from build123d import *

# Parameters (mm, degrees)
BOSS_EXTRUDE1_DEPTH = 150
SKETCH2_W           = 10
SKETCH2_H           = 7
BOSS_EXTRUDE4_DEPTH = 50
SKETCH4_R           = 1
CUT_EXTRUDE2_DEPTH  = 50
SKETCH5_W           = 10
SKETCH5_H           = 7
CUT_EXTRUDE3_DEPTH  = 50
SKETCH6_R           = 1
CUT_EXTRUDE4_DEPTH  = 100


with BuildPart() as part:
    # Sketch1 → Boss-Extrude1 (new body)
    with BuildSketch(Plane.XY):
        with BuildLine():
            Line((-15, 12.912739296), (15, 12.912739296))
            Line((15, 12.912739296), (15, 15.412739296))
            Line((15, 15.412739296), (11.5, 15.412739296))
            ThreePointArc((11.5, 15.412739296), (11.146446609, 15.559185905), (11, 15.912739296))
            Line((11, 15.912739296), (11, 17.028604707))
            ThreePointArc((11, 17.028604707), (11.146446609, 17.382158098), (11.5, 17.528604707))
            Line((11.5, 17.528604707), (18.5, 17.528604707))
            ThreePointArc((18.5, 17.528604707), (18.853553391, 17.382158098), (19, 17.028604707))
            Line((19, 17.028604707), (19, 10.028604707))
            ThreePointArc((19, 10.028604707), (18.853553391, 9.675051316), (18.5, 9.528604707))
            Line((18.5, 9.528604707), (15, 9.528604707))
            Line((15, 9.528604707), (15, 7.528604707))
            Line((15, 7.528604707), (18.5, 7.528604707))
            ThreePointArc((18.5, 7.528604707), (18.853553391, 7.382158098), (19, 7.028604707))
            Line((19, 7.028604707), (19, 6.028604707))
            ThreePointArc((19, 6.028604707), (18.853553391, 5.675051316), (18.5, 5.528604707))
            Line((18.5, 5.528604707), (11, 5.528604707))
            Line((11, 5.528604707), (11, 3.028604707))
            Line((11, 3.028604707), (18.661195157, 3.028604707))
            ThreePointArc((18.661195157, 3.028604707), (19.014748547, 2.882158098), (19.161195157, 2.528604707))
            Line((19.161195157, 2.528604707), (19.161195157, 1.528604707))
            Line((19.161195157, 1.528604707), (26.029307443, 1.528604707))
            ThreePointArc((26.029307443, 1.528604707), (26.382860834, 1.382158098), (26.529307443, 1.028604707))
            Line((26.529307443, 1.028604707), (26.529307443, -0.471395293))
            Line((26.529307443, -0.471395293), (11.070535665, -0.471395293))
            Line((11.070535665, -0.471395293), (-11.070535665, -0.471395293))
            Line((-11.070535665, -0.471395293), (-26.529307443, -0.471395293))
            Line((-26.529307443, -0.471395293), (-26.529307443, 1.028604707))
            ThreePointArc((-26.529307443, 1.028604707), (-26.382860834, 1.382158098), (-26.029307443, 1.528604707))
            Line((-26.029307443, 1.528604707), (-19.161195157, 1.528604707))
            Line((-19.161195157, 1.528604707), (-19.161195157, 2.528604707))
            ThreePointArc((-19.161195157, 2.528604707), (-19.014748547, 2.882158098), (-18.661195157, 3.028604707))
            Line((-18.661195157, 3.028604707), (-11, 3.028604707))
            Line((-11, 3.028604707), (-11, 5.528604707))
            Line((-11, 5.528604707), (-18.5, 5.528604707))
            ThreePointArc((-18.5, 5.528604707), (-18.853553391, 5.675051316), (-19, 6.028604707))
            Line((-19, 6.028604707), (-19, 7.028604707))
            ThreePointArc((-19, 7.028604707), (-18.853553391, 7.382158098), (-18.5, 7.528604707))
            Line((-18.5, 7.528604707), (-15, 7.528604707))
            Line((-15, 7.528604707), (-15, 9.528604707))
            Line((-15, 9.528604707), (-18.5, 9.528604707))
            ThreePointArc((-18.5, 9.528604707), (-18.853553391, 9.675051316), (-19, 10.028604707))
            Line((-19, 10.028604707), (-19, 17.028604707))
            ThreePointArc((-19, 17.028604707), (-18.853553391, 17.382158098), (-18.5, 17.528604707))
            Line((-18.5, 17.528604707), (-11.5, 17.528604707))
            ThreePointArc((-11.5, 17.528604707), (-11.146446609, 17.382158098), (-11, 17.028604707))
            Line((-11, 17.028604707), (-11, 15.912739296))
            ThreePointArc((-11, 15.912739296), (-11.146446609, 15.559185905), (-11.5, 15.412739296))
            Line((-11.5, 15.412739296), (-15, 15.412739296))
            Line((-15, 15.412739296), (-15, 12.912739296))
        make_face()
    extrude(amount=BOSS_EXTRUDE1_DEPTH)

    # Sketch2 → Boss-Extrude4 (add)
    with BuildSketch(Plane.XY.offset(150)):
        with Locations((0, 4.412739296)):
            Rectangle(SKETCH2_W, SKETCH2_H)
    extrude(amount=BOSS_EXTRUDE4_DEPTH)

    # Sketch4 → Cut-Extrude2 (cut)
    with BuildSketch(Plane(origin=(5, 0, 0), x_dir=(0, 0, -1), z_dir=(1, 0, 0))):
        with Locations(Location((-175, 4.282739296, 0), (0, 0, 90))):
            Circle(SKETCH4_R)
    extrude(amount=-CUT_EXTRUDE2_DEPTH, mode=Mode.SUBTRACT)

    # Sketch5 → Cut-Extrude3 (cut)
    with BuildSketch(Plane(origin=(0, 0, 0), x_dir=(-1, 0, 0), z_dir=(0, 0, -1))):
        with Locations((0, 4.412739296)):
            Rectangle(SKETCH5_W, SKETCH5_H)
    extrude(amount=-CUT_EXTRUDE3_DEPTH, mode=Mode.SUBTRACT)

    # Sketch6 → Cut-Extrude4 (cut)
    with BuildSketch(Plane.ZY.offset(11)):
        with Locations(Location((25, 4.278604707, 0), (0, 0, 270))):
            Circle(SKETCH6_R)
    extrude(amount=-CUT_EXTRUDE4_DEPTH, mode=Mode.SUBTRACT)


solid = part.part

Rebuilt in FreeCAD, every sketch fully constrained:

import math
import FreeCAD as App
import Part
import Sketcher
Q = App.Units.Quantity

doc = App.newDocument("Part")
body = doc.addObject("PartDesign::Body", "Body")

# Sketch on XY plane
sketch1 = body.newObject("Sketcher::SketchObject", "Sketch")
sketch1.AttachmentSupport = (doc.getObject("XY_Plane"), [""])
sketch1.MapMode = "FlatFace"
sketch1.addGeometry([
    Part.LineSegment(App.Vector(15, 12.912739, 0), App.Vector(-15, 12.912739, 0)),  # 0
    Part.LineSegment(App.Vector(-15, 12.912739, 0), App.Vector(-15, 15.412739, 0)),  # 1
    Part.LineSegment(App.Vector(-15, 15.412739, 0), App.Vector(-11.5, 15.412739, 0)),  # 2
    Part.ArcOfCircle(Part.Circle(App.Vector(-11.5, 15.912739, 0), App.Vector(0, 0, 1), 0.5), math.radians(-90), math.radians(0)),  # 3
    Part.LineSegment(App.Vector(-11, 15.912739, 0), App.Vector(-11, 17.028605, 0)),  # 4
    Part.ArcOfCircle(Part.Circle(App.Vector(-11.5, 17.028605, 0), App.Vector(0, 0, 1), 0.5), math.radians(0), math.radians(90)),  # 5
    Part.LineSegment(App.Vector(-11.5, 17.528605, 0), App.Vector(-18.5, 17.528605, 0)),  # 6
    Part.ArcOfCircle(Part.Circle(App.Vector(-18.5, 17.028605, 0), App.Vector(0, 0, 1), 0.5), math.radians(90), math.radians(180)),  # 7
    Part.LineSegment(App.Vector(-19, 17.028605, 0), App.Vector(-19, 10.028605, 0)),  # 8
    Part.ArcOfCircle(Part.Circle(App.Vector(-18.5, 10.028605, 0), App.Vector(0, 0, 1), 0.5), math.radians(180), math.radians(270)),  # 9
    Part.LineSegment(App.Vector(-18.5, 9.528605, 0), App.Vector(-15, 9.528605, 0)),  # 10
    Part.LineSegment(App.Vector(-15, 9.528605, 0), App.Vector(-15, 7.528605, 0)),  # 11
    Part.LineSegment(App.Vector(-15, 7.528605, 0), App.Vector(-18.5, 7.528605, 0)),  # 12
    Part.ArcOfCircle(Part.Circle(App.Vector(-18.5, 7.028605, 0), App.Vector(0, 0, 1), 0.5), math.radians(90), math.radians(180)),  # 13
    Part.LineSegment(App.Vector(-19, 7.028605, 0), App.Vector(-19, 6.028605, 0)),  # 14
    Part.ArcOfCircle(Part.Circle(App.Vector(-18.5, 6.028605, 0), App.Vector(0, 0, 1), 0.5), math.radians(180), math.radians(270)),  # 15
    Part.LineSegment(App.Vector(-18.5, 5.528605, 0), App.Vector(-11, 5.528605, 0)),  # 16
    Part.LineSegment(App.Vector(-11, 5.528605, 0), App.Vector(-11, 3.028605, 0)),  # 17
    Part.LineSegment(App.Vector(-11, 3.028605, 0), App.Vector(-18.661195, 3.028605, 0)),  # 18
    Part.ArcOfCircle(Part.Circle(App.Vector(-18.661195, 2.528605, 0), App.Vector(0, 0, 1), 0.5), math.radians(90), math.radians(180)),  # 19
    Part.LineSegment(App.Vector(-19.161195, 2.528605, 0), App.Vector(-19.161195, 1.528605, 0)),  # 20
    Part.LineSegment(App.Vector(-19.161195, 1.528605, 0), App.Vector(-26.029307, 1.528605, 0)),  # 21
    Part.ArcOfCircle(Part.Circle(App.Vector(-26.029307, 1.028605, 0), App.Vector(0, 0, 1), 0.5), math.radians(90), math.radians(180)),  # 22
    Part.LineSegment(App.Vector(-26.529307, 1.028605, 0), App.Vector(-26.529307, -0.471395, 0)),  # 23
    Part.LineSegment(App.Vector(-26.529307, -0.471395, 0), App.Vector(26.529307, -0.471395, 0)),  # 24
    Part.LineSegment(App.Vector(26.529307, -0.471395, 0), App.Vector(26.529307, 1.028605, 0)),  # 25
    Part.ArcOfCircle(Part.Circle(App.Vector(26.029307, 1.028605, 0), App.Vector(0, 0, 1), 0.5), math.radians(0), math.radians(90)),  # 26
    Part.LineSegment(App.Vector(26.029307, 1.528605, 0), App.Vector(19.161195, 1.528605, 0)),  # 27
    Part.LineSegment(App.Vector(19.161195, 1.528605, 0), App.Vector(19.161195, 2.528605, 0)),  # 28
    Part.ArcOfCircle(Part.Circle(App.Vector(18.661195, 2.528605, 0), App.Vector(0, 0, 1), 0.5), math.radians(0), math.radians(90)),  # 29
    Part.LineSegment(App.Vector(18.661195, 3.028605, 0), App.Vector(11, 3.028605, 0)),  # 30
    Part.LineSegment(App.Vector(11, 3.028605, 0), App.Vector(11, 5.528605, 0)),  # 31
    Part.LineSegment(App.Vector(11, 5.528605, 0), App.Vector(18.5, 5.528605, 0)),  # 32
    Part.ArcOfCircle(Part.Circle(App.Vector(18.5, 6.028605, 0), App.Vector(0, 0, 1), 0.5), math.radians(-90), math.radians(0)),  # 33
    Part.LineSegment(App.Vector(19, 6.028605, 0), App.Vector(19, 7.028605, 0)),  # 34
    Part.ArcOfCircle(Part.Circle(App.Vector(18.5, 7.028605, 0), App.Vector(0, 0, 1), 0.5), math.radians(0), math.radians(90)),  # 35
    Part.LineSegment(App.Vector(18.5, 7.528605, 0), App.Vector(15, 7.528605, 0)),  # 36
    Part.LineSegment(App.Vector(15, 7.528605, 0), App.Vector(15, 9.528605, 0)),  # 37
    Part.LineSegment(App.Vector(15, 9.528605, 0), App.Vector(18.5, 9.528605, 0)),  # 38
    Part.ArcOfCircle(Part.Circle(App.Vector(18.5, 10.028605, 0), App.Vector(0, 0, 1), 0.5), math.radians(-90), math.radians(0)),  # 39
    Part.LineSegment(App.Vector(19, 10.028605, 0), App.Vector(19, 17.028605, 0)),  # 40
    Part.ArcOfCircle(Part.Circle(App.Vector(18.5, 17.028605, 0), App.Vector(0, 0, 1), 0.5), math.radians(0), math.radians(90)),  # 41
    Part.LineSegment(App.Vector(18.5, 17.528605, 0), App.Vector(11.5, 17.528605, 0)),  # 42
    Part.ArcOfCircle(Part.Circle(App.Vector(11.5, 17.028605, 0), App.Vector(0, 0, 1), 0.5), math.radians(90), math.radians(180)),  # 43
    Part.LineSegment(App.Vector(11, 17.028605, 0), App.Vector(11, 15.912739, 0)),  # 44
    Part.ArcOfCircle(Part.Circle(App.Vector(11.5, 15.912739, 0), App.Vector(0, 0, 1), 0.5), math.radians(180), math.radians(270)),  # 45
    Part.LineSegment(App.Vector(11.5, 15.412739, 0), App.Vector(15, 15.412739, 0)),  # 46
    Part.LineSegment(App.Vector(15, 15.412739, 0), App.Vector(15, 12.912739, 0)),  # 47
], False)
sketch1.addConstraint([
    Sketcher.Constraint("Coincident", 0, 2, 1, 1),
    Sketcher.Constraint("Coincident", 1, 2, 2, 1),
    Sketcher.Constraint("Tangent", 2, 2, 3, 1),
    Sketcher.Constraint("Tangent", 3, 2, 4, 1),
    Sketcher.Constraint("Tangent", 4, 2, 5, 1),
    Sketcher.Constraint("Tangent", 5, 2, 6, 1),
    Sketcher.Constraint("Tangent", 6, 2, 7, 1),
    Sketcher.Constraint("Tangent", 7, 2, 8, 1),
    Sketcher.Constraint("Tangent", 8, 2, 9, 1),
    Sketcher.Constraint("Tangent", 9, 2, 10, 1),
    Sketcher.Constraint("Coincident", 10, 2, 11, 1),
    Sketcher.Constraint("Coincident", 11, 2, 12, 1),
    Sketcher.Constraint("Tangent", 12, 2, 13, 1),
    Sketcher.Constraint("Tangent", 13, 2, 14, 1),
    Sketcher.Constraint("Tangent", 14, 2, 15, 1),
    Sketcher.Constraint("Tangent", 15, 2, 16, 1),
    Sketcher.Constraint("Coincident", 16, 2, 17, 1),
    Sketcher.Constraint("Coincident", 17, 2, 18, 1),
    Sketcher.Constraint("Tangent", 18, 2, 19, 1),
    Sketcher.Constraint("Tangent", 19, 2, 20, 1),
    Sketcher.Constraint("Coincident", 20, 2, 21, 1),
    Sketcher.Constraint("Tangent", 21, 2, 22, 1),
    Sketcher.Constraint("Tangent", 22, 2, 23, 1),
    Sketcher.Constraint("Coincident", 23, 2, 24, 1),
    Sketcher.Constraint("Coincident", 24, 2, 25, 1),
    Sketcher.Constraint("Tangent", 25, 2, 26, 1),
    Sketcher.Constraint("Tangent", 26, 2, 27, 1),
    Sketcher.Constraint("Coincident", 27, 2, 28, 1),
    Sketcher.Constraint("Tangent", 28, 2, 29, 1),
    Sketcher.Constraint("Tangent", 29, 2, 30, 1),
    Sketcher.Constraint("Coincident", 30, 2, 31, 1),
    Sketcher.Constraint("Coincident", 31, 2, 32, 1),
    Sketcher.Constraint("Tangent", 32, 2, 33, 1),
    Sketcher.Constraint("Tangent", 33, 2, 34, 1),
    Sketcher.Constraint("Tangent", 34, 2, 35, 1),
    Sketcher.Constraint("Tangent", 35, 2, 36, 1),
    Sketcher.Constraint("Coincident", 36, 2, 37, 1),
    Sketcher.Constraint("Coincident", 37, 2, 38, 1),
    Sketcher.Constraint("Tangent", 38, 2, 39, 1),
    Sketcher.Constraint("Tangent", 39, 2, 40, 1),
    Sketcher.Constraint("Tangent", 40, 2, 41, 1),
    Sketcher.Constraint("Tangent", 41, 2, 42, 1),
    Sketcher.Constraint("Tangent", 42, 2, 43, 1),
    Sketcher.Constraint("Tangent", 43, 2, 44, 1),
    Sketcher.Constraint("Tangent", 44, 2, 45, 1),
    Sketcher.Constraint("Tangent", 45, 2, 46, 1),
    Sketcher.Constraint("Coincident", 46, 2, 47, 1),
    Sketcher.Constraint("Coincident", 47, 2, 0, 1),
    Sketcher.Constraint("Horizontal", 0),
    Sketcher.Constraint("Vertical", 1),
    Sketcher.Constraint("Horizontal", 2),
    Sketcher.Constraint("Vertical", 4),
    Sketcher.Constraint("Horizontal", 6),
    Sketcher.Constraint("Vertical", 8),
    Sketcher.Constraint("Horizontal", 10),
    Sketcher.Constraint("Vertical", 11),
    Sketcher.Constraint("Horizontal", 12),
    Sketcher.Constraint("Vertical", 14),
    Sketcher.Constraint("Horizontal", 16),
    Sketcher.Constraint("Vertical", 17),
    Sketcher.Constraint("Horizontal", 18),
    Sketcher.Constraint("Vertical", 20),
    Sketcher.Constraint("Horizontal", 21),
    Sketcher.Constraint("Vertical", 23),
    Sketcher.Constraint("Horizontal", 24),
    Sketcher.Constraint("Vertical", 25),
    Sketcher.Constraint("Horizontal", 27),
    Sketcher.Constraint("Vertical", 28),
    Sketcher.Constraint("Horizontal", 30),
    Sketcher.Constraint("Vertical", 31),
    Sketcher.Constraint("Horizontal", 32),
    Sketcher.Constraint("Vertical", 34),
    Sketcher.Constraint("Horizontal", 36),
    Sketcher.Constraint("Vertical", 37),
    Sketcher.Constraint("Horizontal", 38),
    Sketcher.Constraint("Vertical", 40),
    Sketcher.Constraint("Horizontal", 42),
    Sketcher.Constraint("Vertical", 44),
    Sketcher.Constraint("Horizontal", 46),
    Sketcher.Constraint("Vertical", 47),
    Sketcher.Constraint("Equal", 3, 5),
    Sketcher.Constraint("Equal", 5, 7),
    Sketcher.Constraint("Equal", 7, 9),
    Sketcher.Constraint("Equal", 9, 13),
    Sketcher.Constraint("Equal", 13, 15),
    Sketcher.Constraint("Equal", 15, 19),
    Sketcher.Constraint("Equal", 19, 22),
    Sketcher.Constraint("Equal", 22, 26),
    Sketcher.Constraint("Equal", 26, 29),
    Sketcher.Constraint("Equal", 29, 33),
    Sketcher.Constraint("Equal", 33, 35),
    Sketcher.Constraint("Equal", 35, 39),
    Sketcher.Constraint("Equal", 39, 41),
    Sketcher.Constraint("Equal", 41, 43),
    Sketcher.Constraint("Equal", 43, 45),
    Sketcher.Constraint("Symmetric", 22, 3, 26, 3, -2),
    Sketcher.Constraint("Symmetric", 19, 3, 29, 3, -2),
    Sketcher.Constraint("Symmetric", 15, 3, 33, 3, -2),
    Sketcher.Constraint("Symmetric", 9, 3, 39, 3, -2),
    Sketcher.Constraint("Symmetric", 5, 3, 43, 3, -2),
    Sketcher.Constraint("Symmetric", 11, 2, 36, 2, -2),
    Sketcher.Constraint("Symmetric", 1, 2, 46, 2, -2),
    Sketcher.Constraint("Vertical", 9, 3, 13, 3),
    Sketcher.Constraint("Vertical", 1, 2, 10, 2),
    Sketcher.Constraint("Vertical", 4, 2, 16, 2),
    Sketcher.Constraint("Vertical", 31, 2, 43, 2),
    Sketcher.Constraint("Equal", 2, 10),
    Sketcher.Constraint("Equal", 42, 8),
    Sketcher.Constraint("Equal", 1, 17),
    Sketcher.Constraint("Equal", 14, 20),
    Sketcher.Constraint("Radius", 3, Q("0.5 mm")),
    Sketcher.Constraint("DistanceX", 0, 2, 0, 1, Q("30 mm")),
    Sketcher.Constraint("DistanceX", 6, 2, 6, 1, Q("7 mm")),
    Sketcher.Constraint("DistanceY", 11, 2, 11, 1, Q("2 mm")),
    Sketcher.Constraint("DistanceY", 14, 2, 14, 1, Q("1 mm")),
    Sketcher.Constraint("DistanceY", 1, 1, 1, 2, Q("2.5 mm")),
    Sketcher.Constraint("DistanceY", 23, 2, 23, 1, Q("1.5 mm")),
    Sketcher.Constraint("DistanceX", 18, 2, 18, 1, Q("7.661195 mm")),
    Sketcher.Constraint("DistanceX", 21, 2, 21, 1, Q("6.868112 mm")),
    Sketcher.Constraint("DistanceY", 4, 1, 4, 2, Q("1.115865 mm")),
    Sketcher.Constraint("DistanceY", -1, 1, 3, 3, Q("15.912739 mm")),
])
pad1 = body.newObject("PartDesign::Pad", "Pad")
pad1.Profile = sketch1
pad1.Length = 150

# Sketch on XY plane
sketch2 = body.newObject("Sketcher::SketchObject", "Sketch001")
sketch2.AttachmentSupport = (doc.getObject("XY_Plane"), [""])
sketch2.MapMode = "FlatFace"
sketch2.AttachmentOffset = App.Placement(App.Vector(0, 0, 150), App.Rotation())
sketch2.addGeometry([
    Part.LineSegment(App.Vector(-5, 7.912739, 0), App.Vector(-5, 0.912739, 0)),
    Part.LineSegment(App.Vector(-5, 0.912739, 0), App.Vector(5, 0.912739, 0)),
    Part.LineSegment(App.Vector(5, 0.912739, 0), App.Vector(5, 7.912739, 0)),
    Part.LineSegment(App.Vector(5, 7.912739, 0), App.Vector(-5, 7.912739, 0)),
], False)
sketch2.addConstraint([
    Sketcher.Constraint("Coincident", 0, 2, 1, 1),
    Sketcher.Constraint("Coincident", 1, 2, 2, 1),
    Sketcher.Constraint("Coincident", 2, 2, 3, 1),
    Sketcher.Constraint("Coincident", 3, 2, 0, 1),
    Sketcher.Constraint("Vertical", 0),
    Sketcher.Constraint("Horizontal", 1),
    Sketcher.Constraint("Vertical", 2),
    Sketcher.Constraint("Horizontal", 3),
    Sketcher.Constraint("DistanceX", 1, 1, 1, 2, Q("10 mm")),
    Sketcher.Constraint("DistanceY", 0, 2, 0, 1, Q("7 mm")),
    Sketcher.Constraint("DistanceX", 0, 2, -1, 1, Q("5 mm")),
    Sketcher.Constraint("DistanceY", -1, 1, 0, 2, Q("0.912739 mm")),
])
pad2 = body.newObject("PartDesign::Pad", "Pad001")
pad2.Profile = sketch2
pad2.Length = 50

# Sketch on YZ plane
sketch3 = body.newObject("Sketcher::SketchObject", "Sketch002")
sketch3.AttachmentSupport = (doc.getObject("YZ_Plane"), [""])
sketch3.MapMode = "FlatFace"
sketch3.AttachmentOffset = App.Placement(App.Vector(0, 0, 5), App.Rotation())
sketch3.addGeometry(Part.Circle(App.Vector(4.282739, 175, 0), App.Vector(0, 0, 1), 1), False)
sketch3.addConstraint([
    Sketcher.Constraint("Diameter", 0, Q("2 mm")),
    Sketcher.Constraint("DistanceY", -1, 1, 0, 3, Q("175 mm")),
    Sketcher.Constraint("DistanceX", -1, 1, 0, 3, Q("4.282739 mm")),
])
pocket1 = body.newObject("PartDesign::Pocket", "Pocket")
pocket1.Profile = sketch3
pocket1.Length = 50

# Sketch on XY plane
sketch4 = body.newObject("Sketcher::SketchObject", "Sketch003")
sketch4.AttachmentSupport = (doc.getObject("XY_Plane"), [""])
sketch4.MapMode = "FlatFace"
sketch4.addGeometry([
    Part.LineSegment(App.Vector(5, 7.912739, 0), App.Vector(5, 0.912739, 0)),
    Part.LineSegment(App.Vector(5, 0.912739, 0), App.Vector(-5, 0.912739, 0)),
    Part.LineSegment(App.Vector(-5, 0.912739, 0), App.Vector(-5, 7.912739, 0)),
    Part.LineSegment(App.Vector(-5, 7.912739, 0), App.Vector(5, 7.912739, 0)),
], False)
sketch4.addConstraint([
    Sketcher.Constraint("Coincident", 0, 2, 1, 1),
    Sketcher.Constraint("Coincident", 1, 2, 2, 1),
    Sketcher.Constraint("Coincident", 2, 2, 3, 1),
    Sketcher.Constraint("Coincident", 3, 2, 0, 1),
    Sketcher.Constraint("Vertical", 0),
    Sketcher.Constraint("Horizontal", 1),
    Sketcher.Constraint("Vertical", 2),
    Sketcher.Constraint("Horizontal", 3),
    Sketcher.Constraint("DistanceX", 1, 2, 1, 1, Q("10 mm")),
    Sketcher.Constraint("DistanceY", 0, 2, 0, 1, Q("7 mm")),
    Sketcher.Constraint("DistanceX", -1, 1, 0, 2, Q("5 mm")),
    Sketcher.Constraint("DistanceY", -1, 1, 0, 2, Q("0.912739 mm")),
])
pocket2 = body.newObject("PartDesign::Pocket", "Pocket001")
pocket2.Profile = sketch4
pocket2.Length = 50
pocket2.Reversed = True

# Sketch on YZ plane
sketch5 = body.newObject("Sketcher::SketchObject", "Sketch004")
sketch5.AttachmentSupport = (doc.getObject("YZ_Plane"), [""])
sketch5.MapMode = "FlatFace"
sketch5.AttachmentOffset = App.Placement(App.Vector(0, 0, -11), App.Rotation())
sketch5.addGeometry(Part.Circle(App.Vector(4.278605, 25, 0), App.Vector(0, 0, 1), 1), False)
sketch5.addConstraint([
    Sketcher.Constraint("Diameter", 0, Q("2 mm")),
    Sketcher.Constraint("DistanceY", -1, 1, 0, 3, Q("25 mm")),
    Sketcher.Constraint("DistanceX", -1, 1, 0, 3, Q("4.278605 mm")),
])
pocket3 = body.newObject("PartDesign::Pocket", "Pocket002")
pocket3.Profile = sketch5
pocket3.Length = 100
pocket3.Reversed = True

doc.recompute()
